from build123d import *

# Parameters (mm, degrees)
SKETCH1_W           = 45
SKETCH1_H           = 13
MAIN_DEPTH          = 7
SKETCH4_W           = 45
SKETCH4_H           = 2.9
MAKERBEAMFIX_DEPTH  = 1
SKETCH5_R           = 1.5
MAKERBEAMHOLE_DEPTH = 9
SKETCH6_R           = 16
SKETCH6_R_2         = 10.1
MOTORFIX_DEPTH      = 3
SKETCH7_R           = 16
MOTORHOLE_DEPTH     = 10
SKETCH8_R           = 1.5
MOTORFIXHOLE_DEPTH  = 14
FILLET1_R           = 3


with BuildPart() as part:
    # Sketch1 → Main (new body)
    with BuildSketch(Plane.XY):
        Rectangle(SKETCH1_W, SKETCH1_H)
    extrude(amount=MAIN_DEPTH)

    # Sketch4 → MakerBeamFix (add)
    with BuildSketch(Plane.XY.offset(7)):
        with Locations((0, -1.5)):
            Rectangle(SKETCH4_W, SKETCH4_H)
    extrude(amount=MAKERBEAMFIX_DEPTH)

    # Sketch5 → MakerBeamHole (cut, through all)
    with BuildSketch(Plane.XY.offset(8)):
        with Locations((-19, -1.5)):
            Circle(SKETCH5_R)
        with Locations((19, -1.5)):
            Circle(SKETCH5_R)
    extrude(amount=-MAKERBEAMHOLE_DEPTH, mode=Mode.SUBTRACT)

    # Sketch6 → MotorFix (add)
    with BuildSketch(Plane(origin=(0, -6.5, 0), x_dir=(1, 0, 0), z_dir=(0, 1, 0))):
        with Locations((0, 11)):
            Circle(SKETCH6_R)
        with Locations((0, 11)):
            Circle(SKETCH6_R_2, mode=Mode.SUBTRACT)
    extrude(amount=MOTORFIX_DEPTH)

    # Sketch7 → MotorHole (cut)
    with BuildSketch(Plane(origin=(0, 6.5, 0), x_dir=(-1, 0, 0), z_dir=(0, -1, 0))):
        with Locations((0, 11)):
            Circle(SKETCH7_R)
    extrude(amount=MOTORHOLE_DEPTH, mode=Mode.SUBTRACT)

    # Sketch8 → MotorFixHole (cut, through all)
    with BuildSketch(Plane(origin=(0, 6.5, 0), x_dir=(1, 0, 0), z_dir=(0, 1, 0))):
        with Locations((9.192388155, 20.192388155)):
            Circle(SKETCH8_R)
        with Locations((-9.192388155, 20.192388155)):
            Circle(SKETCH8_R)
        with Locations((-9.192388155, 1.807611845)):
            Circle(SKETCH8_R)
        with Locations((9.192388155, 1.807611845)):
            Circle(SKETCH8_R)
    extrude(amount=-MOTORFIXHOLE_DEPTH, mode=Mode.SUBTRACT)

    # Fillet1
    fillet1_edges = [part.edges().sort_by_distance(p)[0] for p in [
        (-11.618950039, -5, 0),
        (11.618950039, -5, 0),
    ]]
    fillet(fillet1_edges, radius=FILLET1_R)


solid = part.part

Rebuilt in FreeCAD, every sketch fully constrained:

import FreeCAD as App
import Part
import Sketcher


def edges_at(feature, points):
    """Names of the edges that pass closest to the given points."""
    edges = feature.Shape.Edges
    near = lambda p: min(range(len(edges)), key=lambda i: edges[i].distToShape(Part.Vertex(*p))[0])
    return sorted({f"Edge{near(p) + 1}" for p in points})

doc = App.newDocument("Part")
body = doc.addObject("PartDesign::Body", "Body")

sketch1 = body.newObject("Sketcher::SketchObject", "Sketch")
sketch1.AttachmentSupport = (doc.getObject("XY_Plane"), [""])
sketch1.MapMode = "FlatFace"
sketch1.addGeometry([
    Part.LineSegment(App.Vector(-22, 6, 0), App.Vector(-22, -6, 0)),
    Part.LineSegment(App.Vector(-22, -6, 0), App.Vector(22, -6, 0)),
    Part.LineSegment(App.Vector(22, -6, 0), App.Vector(22, 6, 0)),
    Part.LineSegment(App.Vector(22, 6, 0), App.Vector(-22, 6, 0)),
], False)
sketch1.addConstraint([
    Sketcher.Constraint("Coincident", 0, 2, 1, 1),
    Sketcher.Constraint("Coincident", 1, 2, 2, 1),
    Sketcher.Constraint("Coincident", 2, 2, 3, 1),
    Sketcher.Constraint("Coincident", 3, 2, 0, 1),
    Sketcher.Constraint("Vertical", 0),
    Sketcher.Constraint("Horizontal", 1),
    Sketcher.Constraint("Vertical", 2),
    Sketcher.Constraint("Horizontal", 3),
    Sketcher.Constraint("Symmetric", 0, 2, 2, 2, -1, 1),
    Sketcher.Constraint("DistanceX", 1, 1, 1, 2, 45.0),
    Sketcher.Constraint("DistanceY", 0, 2, 0, 1, 13.0),
])
pad1 = body.newObject("PartDesign::Pad", "Pad")
pad1.Profile = sketch1
pad1.Length = 7

sketch2 = body.newObject("Sketcher::SketchObject", "Sketch001")
sketch2.AttachmentSupport = (doc.getObject("XY_Plane"), [""])
sketch2.MapMode = "FlatFace"
sketch2.AttachmentOffset = App.Placement(App.Vector(0, 0, 7), App.Rotation())
sketch2.addGeometry([
    Part.LineSegment(App.Vector(-22.5, -0.1, 0), App.Vector(-22.5, -3, 0)),
    Part.LineSegment(App.Vector(-22.5, -3, 0), App.Vector(22.5, -3, 0)),
    Part.LineSegment(App.Vector(22.5, -3, 0), App.Vector(22.5, -0.1, 0)),
    Part.LineSegment(App.Vector(22.5, -0.1, 0), App.Vector(-22.5, -0.1, 0)),
], False)
sketch2.addConstraint([
    Sketcher.Constraint("Coincident", 0, 2, 1, 1),
    Sketcher.Constraint("Coincident", 1, 2, 2, 1),
    Sketcher.Constraint("Coincident", 2, 2, 3, 1),
    Sketcher.Constraint("Coincident", 3, 2, 0, 1),
    Sketcher.Constraint("Vertical", 0),
    Sketcher.Constraint("Horizontal", 1),
    Sketcher.Constraint("Vertical", 2),
    Sketcher.Constraint("Horizontal", 3),
    Sketcher.Constraint("DistanceX", 1, 1, 1, 2, 45.0),
    Sketcher.Constraint("DistanceY", 0, 2, 0, 1, 2.9),
    Sketcher.Constraint("DistanceX", 0, 2, -1, 1, 22.5),
    Sketcher.Constraint("DistanceY", 0, 2, -1, 1, 2.95),
])
pad2 = body.newObject("PartDesign::Pad", "Pad001")
pad2.Profile = sketch2
pad2.Length = 1

sketch3 = body.newObject("Sketcher::SketchObject", "Sketch002")
sketch3.AttachmentSupport = (doc.getObject("XY_Plane"), [""])
sketch3.MapMode = "FlatFace"
sketch3.AttachmentOffset = App.Placement(App.Vector(0, 0, 8), App.Rotation())
sketch3.addGeometry([
    Part.Circle(App.Vector(-19, -1.5, 0), App.Vector(0, 0, 1), 1.5),
    Part.Circle(App.Vector(19, -1.5, 0), App.Vector(0, 0, 1), 1.5),
], False)
sketch3.addConstraint([
    Sketcher.Constraint("Equal", 0, 1),
    Sketcher.Constraint("Symmetric", 0, 3, 1, 3, -2),
    Sketcher.Constraint("Diameter", 0, 3.0),
    Sketcher.Constraint("DistanceX", 0, 3, -1, 1, 19.0),
    Sketcher.Constraint("DistanceY", 0, 3, -1, 1, 1.5),
])
pocket1 = body.newObject("PartDesign::Pocket", "Pocket")
pocket1.Profile = sketch3
pocket1.Type = "ThroughAll"

sketch4 = body.newObject("Sketcher::SketchObject", "Sketch003")
sketch4.AttachmentSupport = (doc.getObject("XZ_Plane"), [""])
sketch4.MapMode = "FlatFace"
sketch4.AttachmentOffset = App.Placement(App.Vector(0, 0, 6.5), App.Rotation())
sketch4.addGeometry([
    Part.Circle(App.Vector(0, -11, 0), App.Vector(0, 0, 1), 16),
    Part.Circle(App.Vector(0, -11, 0), App.Vector(0, 0, 1), 10),
], False)
sketch4.addConstraint([
    Sketcher.Constraint("Coincident", 1, 3, 0, 3),
    Sketcher.Constraint("PointOnObject", 0, 3, -2),
    Sketcher.Constraint("Diameter", 0, 32.0),
    Sketcher.Constraint("Diameter", 1, 20.2),
    Sketcher.Constraint("DistanceY", 0, 3, -1, 1, 11.0),
])
pad3 = body.newObject("PartDesign::Pad", "Pad002")
pad3.Profile = sketch4
pad3.Length = 3
pad3.Reversed = True

sketch5 = body.newObject("Sketcher::SketchObject", "Sketch004")
sketch5.AttachmentSupport = (doc.getObject("XZ_Plane"), [""])
sketch5.MapMode = "FlatFace"
sketch5.AttachmentOffset = App.Placement(App.Vector(0, 0, -6.5), App.Rotation())
sketch5.addGeometry(Part.Circle(App.Vector(0, -11, 0), App.Vector(0, 0, 1), 16), False)
sketch5.addConstraint([
    Sketcher.Constraint("PointOnObject", 0, 3, -2),
    Sketcher.Constraint("Diameter", 0, 32.0),
    Sketcher.Constraint("DistanceY", 0, 3, -1, 1, 11.0),
])
pocket2 = body.newObject("PartDesign::Pocket", "Pocket001")
pocket2.Profile = sketch5
pocket2.Length = 10
pocket2.Reversed = True

sketch6 = body.newObject("Sketcher::SketchObject", "Sketch005")
sketch6.AttachmentSupport = (doc.getObject("XZ_Plane"), [""])
sketch6.MapMode = "FlatFace"
sketch6.AttachmentOffset = App.Placement(App.Vector(0, 0, -6.5), App.Rotation())
sketch6.addGeometry([
    Part.Circle(App.Vector(9.2, -20.2, 0), App.Vector(0, 0, 1), 1.5),
    Part.Circle(App.Vector(-9.2, -20.2, 0), App.Vector(0, 0, 1), 1.5),
    Part.Circle(App.Vector(-9.2, -1.8, 0), App.Vector(0, 0, 1), 1.5),
    Part.Circle(App.Vector(9.2, -1.8, 0), App.Vector(0, 0, 1), 1.5),
], False)
sketch6.addConstraint([
    Sketcher.Constraint("Equal", 0, 1),
    Sketcher.Constraint("Equal", 1, 2),
    Sketcher.Constraint("Equal", 2, 3),
    Sketcher.Constraint("Symmetric", 0, 3, 1, 3, -2),
    Sketcher.Constraint("Symmetric", 2, 3, 3, 3, -2),
    Sketcher.Constraint("Vertical", 1, 3, 2, 3),
    Sketcher.Constraint("Diameter", 0, 3.0),
    Sketcher.Constraint("DistanceX", -1, 1, 0, 3, 9.192388),
    Sketcher.Constraint("DistanceY", 0, 3, -1, 1, 20.192388),
    Sketcher.Constraint("DistanceY", 2, 3, -1, 1, 1.807612),
])
pocket3 = body.newObject("PartDesign::Pocket", "Pocket002")
pocket3.Profile = sketch6
pocket3.Type = "ThroughAll"
pocket3.Reversed = True
doc.recompute()

fillet = body.newObject("PartDesign::Fillet", "Fillet")
fillet.Base = (pocket3, edges_at(pocket3, [(-11.619, -5, 0), (11.619, -5, 0)]))
fillet.Radius = 3

doc.recompute()
